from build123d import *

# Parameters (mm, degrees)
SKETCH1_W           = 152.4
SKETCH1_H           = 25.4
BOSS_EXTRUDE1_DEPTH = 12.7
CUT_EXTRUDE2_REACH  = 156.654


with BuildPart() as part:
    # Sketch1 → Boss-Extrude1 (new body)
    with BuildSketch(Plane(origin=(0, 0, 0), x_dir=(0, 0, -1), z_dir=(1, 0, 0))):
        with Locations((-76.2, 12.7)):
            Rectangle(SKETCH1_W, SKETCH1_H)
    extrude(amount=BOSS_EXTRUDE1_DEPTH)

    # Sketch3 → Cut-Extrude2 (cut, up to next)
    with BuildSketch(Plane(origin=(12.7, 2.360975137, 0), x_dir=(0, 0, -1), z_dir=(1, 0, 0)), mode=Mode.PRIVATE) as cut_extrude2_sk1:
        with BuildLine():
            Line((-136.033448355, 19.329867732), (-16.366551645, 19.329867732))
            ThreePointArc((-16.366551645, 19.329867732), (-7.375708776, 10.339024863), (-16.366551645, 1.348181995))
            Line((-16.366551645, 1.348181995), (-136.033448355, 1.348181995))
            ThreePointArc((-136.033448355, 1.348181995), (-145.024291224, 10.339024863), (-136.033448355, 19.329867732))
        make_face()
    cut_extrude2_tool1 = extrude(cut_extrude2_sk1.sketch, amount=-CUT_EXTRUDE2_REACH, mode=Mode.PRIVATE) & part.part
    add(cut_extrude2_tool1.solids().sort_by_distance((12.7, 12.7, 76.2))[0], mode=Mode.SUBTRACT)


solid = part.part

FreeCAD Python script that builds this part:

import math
import FreeCAD as App
import Part
import Sketcher
Q = App.Units.Quantity


def add_polygon(sketch, points):
    """Adds a closed chain of lines whose ends are joined by coincident constraints."""
    first, n = sketch.GeometryCount, len(points)
    for a, b in zip(points, points[1:] + points[:1]):
        sketch.addGeometry(Part.LineSegment(App.Vector(*a, 0), App.Vector(*b, 0)), False)
    for i in range(n):
        sketch.addConstraint(Sketcher.Constraint("Coincident", first + i, 2, first + (i + 1) % n, 1))

doc = App.newDocument("Part")
body = doc.addObject("PartDesign::Body", "Body")

# Sketch on YZ plane
sketch1 = body.newObject("Sketcher::SketchObject", "Sketch")
sketch1.AttachmentSupport = (doc.getObject("YZ_Plane"), [""])
sketch1.MapMode = "FlatFace"
add_polygon(sketch1, [(25.4, 152.4), (0, 152.4), (0, 0), (25.4, 0)])  # lines 0-3
sketch1.addConstraint([
    Sketcher.Constraint("Horizontal", 0),
    Sketcher.Constraint("Vertical", 1),
    Sketcher.Constraint("Horizontal", 2),
    Sketcher.Constraint("Vertical", 3),
    Sketcher.Constraint("Coincident", 1, 2, -1, 1),
    Sketcher.Constraint("DistanceX", 0, 2, 0, 1, Q("1 in")),
    Sketcher.Constraint("DistanceY", 1, 2, 1, 1, Q("6 in")),
])
pad1 = body.newObject("PartDesign::Pad", "Pad")
pad1.Profile = sketch1
pad1.Length = Q("0.5 in")

# Sketch on YZ plane
sketch2 = body.newObject("Sketcher::SketchObject", "Sketch001")
sketch2.AttachmentSupport = (doc.getObject("YZ_Plane"), [""])
sketch2.MapMode = "FlatFace"
sketch2.AttachmentOffset = App.Placement(App.Vector(0, 0, 0.5 * 25.4), App.Rotation())
sketch2.addGeometry([
    Part.LineSegment(App.Vector(21.690843, 16.366552, 0), App.Vector(21.690843, 136.033448, 0)),
    Part.ArcOfCircle(Part.Circle(App.Vector(12.7, 136.033448, 0), App.Vector(0, 0, 1), 8.990843), math.radians(0), math.radians(180)),
    Part.LineSegment(App.Vector(3.709157, 136.033448, 0), App.Vector(3.709157, 16.366552, 0)),
    Part.ArcOfCircle(Part.Circle(App.Vector(12.7, 16.366552, 0), App.Vector(0, 0, 1), 8.990843), math.radians(180), math.radians(360)),
], False)
sketch2.addConstraint([
    Sketcher.Constraint("Tangent", 0, 2, 1, 1),
    Sketcher.Constraint("Tangent", 1, 2, 2, 1),
    Sketcher.Constraint("Tangent", 2, 2, 3, 1),
    Sketcher.Constraint("Tangent", 3, 2, 0, 1),
    Sketcher.Constraint("Vertical", 0),
    Sketcher.Constraint("Vertical", 2),
    Sketcher.Constraint("DistanceX", -1, 1, 1, 3, Q("0.5 in")),
    Sketcher.Constraint("Radius", 1, 8.990843),
    Sketcher.Constraint("DistanceY", 0, 1, 0, 2, 119.666897),
    Sketcher.Constraint("DistanceY", -1, 1, 1, 3, 136.033448),
])
pocket1 = body.newObject("PartDesign::Pocket", "Pocket")
pocket1.Profile = sketch2
pocket1.Type = "UpToFirst"

doc.recompute()
